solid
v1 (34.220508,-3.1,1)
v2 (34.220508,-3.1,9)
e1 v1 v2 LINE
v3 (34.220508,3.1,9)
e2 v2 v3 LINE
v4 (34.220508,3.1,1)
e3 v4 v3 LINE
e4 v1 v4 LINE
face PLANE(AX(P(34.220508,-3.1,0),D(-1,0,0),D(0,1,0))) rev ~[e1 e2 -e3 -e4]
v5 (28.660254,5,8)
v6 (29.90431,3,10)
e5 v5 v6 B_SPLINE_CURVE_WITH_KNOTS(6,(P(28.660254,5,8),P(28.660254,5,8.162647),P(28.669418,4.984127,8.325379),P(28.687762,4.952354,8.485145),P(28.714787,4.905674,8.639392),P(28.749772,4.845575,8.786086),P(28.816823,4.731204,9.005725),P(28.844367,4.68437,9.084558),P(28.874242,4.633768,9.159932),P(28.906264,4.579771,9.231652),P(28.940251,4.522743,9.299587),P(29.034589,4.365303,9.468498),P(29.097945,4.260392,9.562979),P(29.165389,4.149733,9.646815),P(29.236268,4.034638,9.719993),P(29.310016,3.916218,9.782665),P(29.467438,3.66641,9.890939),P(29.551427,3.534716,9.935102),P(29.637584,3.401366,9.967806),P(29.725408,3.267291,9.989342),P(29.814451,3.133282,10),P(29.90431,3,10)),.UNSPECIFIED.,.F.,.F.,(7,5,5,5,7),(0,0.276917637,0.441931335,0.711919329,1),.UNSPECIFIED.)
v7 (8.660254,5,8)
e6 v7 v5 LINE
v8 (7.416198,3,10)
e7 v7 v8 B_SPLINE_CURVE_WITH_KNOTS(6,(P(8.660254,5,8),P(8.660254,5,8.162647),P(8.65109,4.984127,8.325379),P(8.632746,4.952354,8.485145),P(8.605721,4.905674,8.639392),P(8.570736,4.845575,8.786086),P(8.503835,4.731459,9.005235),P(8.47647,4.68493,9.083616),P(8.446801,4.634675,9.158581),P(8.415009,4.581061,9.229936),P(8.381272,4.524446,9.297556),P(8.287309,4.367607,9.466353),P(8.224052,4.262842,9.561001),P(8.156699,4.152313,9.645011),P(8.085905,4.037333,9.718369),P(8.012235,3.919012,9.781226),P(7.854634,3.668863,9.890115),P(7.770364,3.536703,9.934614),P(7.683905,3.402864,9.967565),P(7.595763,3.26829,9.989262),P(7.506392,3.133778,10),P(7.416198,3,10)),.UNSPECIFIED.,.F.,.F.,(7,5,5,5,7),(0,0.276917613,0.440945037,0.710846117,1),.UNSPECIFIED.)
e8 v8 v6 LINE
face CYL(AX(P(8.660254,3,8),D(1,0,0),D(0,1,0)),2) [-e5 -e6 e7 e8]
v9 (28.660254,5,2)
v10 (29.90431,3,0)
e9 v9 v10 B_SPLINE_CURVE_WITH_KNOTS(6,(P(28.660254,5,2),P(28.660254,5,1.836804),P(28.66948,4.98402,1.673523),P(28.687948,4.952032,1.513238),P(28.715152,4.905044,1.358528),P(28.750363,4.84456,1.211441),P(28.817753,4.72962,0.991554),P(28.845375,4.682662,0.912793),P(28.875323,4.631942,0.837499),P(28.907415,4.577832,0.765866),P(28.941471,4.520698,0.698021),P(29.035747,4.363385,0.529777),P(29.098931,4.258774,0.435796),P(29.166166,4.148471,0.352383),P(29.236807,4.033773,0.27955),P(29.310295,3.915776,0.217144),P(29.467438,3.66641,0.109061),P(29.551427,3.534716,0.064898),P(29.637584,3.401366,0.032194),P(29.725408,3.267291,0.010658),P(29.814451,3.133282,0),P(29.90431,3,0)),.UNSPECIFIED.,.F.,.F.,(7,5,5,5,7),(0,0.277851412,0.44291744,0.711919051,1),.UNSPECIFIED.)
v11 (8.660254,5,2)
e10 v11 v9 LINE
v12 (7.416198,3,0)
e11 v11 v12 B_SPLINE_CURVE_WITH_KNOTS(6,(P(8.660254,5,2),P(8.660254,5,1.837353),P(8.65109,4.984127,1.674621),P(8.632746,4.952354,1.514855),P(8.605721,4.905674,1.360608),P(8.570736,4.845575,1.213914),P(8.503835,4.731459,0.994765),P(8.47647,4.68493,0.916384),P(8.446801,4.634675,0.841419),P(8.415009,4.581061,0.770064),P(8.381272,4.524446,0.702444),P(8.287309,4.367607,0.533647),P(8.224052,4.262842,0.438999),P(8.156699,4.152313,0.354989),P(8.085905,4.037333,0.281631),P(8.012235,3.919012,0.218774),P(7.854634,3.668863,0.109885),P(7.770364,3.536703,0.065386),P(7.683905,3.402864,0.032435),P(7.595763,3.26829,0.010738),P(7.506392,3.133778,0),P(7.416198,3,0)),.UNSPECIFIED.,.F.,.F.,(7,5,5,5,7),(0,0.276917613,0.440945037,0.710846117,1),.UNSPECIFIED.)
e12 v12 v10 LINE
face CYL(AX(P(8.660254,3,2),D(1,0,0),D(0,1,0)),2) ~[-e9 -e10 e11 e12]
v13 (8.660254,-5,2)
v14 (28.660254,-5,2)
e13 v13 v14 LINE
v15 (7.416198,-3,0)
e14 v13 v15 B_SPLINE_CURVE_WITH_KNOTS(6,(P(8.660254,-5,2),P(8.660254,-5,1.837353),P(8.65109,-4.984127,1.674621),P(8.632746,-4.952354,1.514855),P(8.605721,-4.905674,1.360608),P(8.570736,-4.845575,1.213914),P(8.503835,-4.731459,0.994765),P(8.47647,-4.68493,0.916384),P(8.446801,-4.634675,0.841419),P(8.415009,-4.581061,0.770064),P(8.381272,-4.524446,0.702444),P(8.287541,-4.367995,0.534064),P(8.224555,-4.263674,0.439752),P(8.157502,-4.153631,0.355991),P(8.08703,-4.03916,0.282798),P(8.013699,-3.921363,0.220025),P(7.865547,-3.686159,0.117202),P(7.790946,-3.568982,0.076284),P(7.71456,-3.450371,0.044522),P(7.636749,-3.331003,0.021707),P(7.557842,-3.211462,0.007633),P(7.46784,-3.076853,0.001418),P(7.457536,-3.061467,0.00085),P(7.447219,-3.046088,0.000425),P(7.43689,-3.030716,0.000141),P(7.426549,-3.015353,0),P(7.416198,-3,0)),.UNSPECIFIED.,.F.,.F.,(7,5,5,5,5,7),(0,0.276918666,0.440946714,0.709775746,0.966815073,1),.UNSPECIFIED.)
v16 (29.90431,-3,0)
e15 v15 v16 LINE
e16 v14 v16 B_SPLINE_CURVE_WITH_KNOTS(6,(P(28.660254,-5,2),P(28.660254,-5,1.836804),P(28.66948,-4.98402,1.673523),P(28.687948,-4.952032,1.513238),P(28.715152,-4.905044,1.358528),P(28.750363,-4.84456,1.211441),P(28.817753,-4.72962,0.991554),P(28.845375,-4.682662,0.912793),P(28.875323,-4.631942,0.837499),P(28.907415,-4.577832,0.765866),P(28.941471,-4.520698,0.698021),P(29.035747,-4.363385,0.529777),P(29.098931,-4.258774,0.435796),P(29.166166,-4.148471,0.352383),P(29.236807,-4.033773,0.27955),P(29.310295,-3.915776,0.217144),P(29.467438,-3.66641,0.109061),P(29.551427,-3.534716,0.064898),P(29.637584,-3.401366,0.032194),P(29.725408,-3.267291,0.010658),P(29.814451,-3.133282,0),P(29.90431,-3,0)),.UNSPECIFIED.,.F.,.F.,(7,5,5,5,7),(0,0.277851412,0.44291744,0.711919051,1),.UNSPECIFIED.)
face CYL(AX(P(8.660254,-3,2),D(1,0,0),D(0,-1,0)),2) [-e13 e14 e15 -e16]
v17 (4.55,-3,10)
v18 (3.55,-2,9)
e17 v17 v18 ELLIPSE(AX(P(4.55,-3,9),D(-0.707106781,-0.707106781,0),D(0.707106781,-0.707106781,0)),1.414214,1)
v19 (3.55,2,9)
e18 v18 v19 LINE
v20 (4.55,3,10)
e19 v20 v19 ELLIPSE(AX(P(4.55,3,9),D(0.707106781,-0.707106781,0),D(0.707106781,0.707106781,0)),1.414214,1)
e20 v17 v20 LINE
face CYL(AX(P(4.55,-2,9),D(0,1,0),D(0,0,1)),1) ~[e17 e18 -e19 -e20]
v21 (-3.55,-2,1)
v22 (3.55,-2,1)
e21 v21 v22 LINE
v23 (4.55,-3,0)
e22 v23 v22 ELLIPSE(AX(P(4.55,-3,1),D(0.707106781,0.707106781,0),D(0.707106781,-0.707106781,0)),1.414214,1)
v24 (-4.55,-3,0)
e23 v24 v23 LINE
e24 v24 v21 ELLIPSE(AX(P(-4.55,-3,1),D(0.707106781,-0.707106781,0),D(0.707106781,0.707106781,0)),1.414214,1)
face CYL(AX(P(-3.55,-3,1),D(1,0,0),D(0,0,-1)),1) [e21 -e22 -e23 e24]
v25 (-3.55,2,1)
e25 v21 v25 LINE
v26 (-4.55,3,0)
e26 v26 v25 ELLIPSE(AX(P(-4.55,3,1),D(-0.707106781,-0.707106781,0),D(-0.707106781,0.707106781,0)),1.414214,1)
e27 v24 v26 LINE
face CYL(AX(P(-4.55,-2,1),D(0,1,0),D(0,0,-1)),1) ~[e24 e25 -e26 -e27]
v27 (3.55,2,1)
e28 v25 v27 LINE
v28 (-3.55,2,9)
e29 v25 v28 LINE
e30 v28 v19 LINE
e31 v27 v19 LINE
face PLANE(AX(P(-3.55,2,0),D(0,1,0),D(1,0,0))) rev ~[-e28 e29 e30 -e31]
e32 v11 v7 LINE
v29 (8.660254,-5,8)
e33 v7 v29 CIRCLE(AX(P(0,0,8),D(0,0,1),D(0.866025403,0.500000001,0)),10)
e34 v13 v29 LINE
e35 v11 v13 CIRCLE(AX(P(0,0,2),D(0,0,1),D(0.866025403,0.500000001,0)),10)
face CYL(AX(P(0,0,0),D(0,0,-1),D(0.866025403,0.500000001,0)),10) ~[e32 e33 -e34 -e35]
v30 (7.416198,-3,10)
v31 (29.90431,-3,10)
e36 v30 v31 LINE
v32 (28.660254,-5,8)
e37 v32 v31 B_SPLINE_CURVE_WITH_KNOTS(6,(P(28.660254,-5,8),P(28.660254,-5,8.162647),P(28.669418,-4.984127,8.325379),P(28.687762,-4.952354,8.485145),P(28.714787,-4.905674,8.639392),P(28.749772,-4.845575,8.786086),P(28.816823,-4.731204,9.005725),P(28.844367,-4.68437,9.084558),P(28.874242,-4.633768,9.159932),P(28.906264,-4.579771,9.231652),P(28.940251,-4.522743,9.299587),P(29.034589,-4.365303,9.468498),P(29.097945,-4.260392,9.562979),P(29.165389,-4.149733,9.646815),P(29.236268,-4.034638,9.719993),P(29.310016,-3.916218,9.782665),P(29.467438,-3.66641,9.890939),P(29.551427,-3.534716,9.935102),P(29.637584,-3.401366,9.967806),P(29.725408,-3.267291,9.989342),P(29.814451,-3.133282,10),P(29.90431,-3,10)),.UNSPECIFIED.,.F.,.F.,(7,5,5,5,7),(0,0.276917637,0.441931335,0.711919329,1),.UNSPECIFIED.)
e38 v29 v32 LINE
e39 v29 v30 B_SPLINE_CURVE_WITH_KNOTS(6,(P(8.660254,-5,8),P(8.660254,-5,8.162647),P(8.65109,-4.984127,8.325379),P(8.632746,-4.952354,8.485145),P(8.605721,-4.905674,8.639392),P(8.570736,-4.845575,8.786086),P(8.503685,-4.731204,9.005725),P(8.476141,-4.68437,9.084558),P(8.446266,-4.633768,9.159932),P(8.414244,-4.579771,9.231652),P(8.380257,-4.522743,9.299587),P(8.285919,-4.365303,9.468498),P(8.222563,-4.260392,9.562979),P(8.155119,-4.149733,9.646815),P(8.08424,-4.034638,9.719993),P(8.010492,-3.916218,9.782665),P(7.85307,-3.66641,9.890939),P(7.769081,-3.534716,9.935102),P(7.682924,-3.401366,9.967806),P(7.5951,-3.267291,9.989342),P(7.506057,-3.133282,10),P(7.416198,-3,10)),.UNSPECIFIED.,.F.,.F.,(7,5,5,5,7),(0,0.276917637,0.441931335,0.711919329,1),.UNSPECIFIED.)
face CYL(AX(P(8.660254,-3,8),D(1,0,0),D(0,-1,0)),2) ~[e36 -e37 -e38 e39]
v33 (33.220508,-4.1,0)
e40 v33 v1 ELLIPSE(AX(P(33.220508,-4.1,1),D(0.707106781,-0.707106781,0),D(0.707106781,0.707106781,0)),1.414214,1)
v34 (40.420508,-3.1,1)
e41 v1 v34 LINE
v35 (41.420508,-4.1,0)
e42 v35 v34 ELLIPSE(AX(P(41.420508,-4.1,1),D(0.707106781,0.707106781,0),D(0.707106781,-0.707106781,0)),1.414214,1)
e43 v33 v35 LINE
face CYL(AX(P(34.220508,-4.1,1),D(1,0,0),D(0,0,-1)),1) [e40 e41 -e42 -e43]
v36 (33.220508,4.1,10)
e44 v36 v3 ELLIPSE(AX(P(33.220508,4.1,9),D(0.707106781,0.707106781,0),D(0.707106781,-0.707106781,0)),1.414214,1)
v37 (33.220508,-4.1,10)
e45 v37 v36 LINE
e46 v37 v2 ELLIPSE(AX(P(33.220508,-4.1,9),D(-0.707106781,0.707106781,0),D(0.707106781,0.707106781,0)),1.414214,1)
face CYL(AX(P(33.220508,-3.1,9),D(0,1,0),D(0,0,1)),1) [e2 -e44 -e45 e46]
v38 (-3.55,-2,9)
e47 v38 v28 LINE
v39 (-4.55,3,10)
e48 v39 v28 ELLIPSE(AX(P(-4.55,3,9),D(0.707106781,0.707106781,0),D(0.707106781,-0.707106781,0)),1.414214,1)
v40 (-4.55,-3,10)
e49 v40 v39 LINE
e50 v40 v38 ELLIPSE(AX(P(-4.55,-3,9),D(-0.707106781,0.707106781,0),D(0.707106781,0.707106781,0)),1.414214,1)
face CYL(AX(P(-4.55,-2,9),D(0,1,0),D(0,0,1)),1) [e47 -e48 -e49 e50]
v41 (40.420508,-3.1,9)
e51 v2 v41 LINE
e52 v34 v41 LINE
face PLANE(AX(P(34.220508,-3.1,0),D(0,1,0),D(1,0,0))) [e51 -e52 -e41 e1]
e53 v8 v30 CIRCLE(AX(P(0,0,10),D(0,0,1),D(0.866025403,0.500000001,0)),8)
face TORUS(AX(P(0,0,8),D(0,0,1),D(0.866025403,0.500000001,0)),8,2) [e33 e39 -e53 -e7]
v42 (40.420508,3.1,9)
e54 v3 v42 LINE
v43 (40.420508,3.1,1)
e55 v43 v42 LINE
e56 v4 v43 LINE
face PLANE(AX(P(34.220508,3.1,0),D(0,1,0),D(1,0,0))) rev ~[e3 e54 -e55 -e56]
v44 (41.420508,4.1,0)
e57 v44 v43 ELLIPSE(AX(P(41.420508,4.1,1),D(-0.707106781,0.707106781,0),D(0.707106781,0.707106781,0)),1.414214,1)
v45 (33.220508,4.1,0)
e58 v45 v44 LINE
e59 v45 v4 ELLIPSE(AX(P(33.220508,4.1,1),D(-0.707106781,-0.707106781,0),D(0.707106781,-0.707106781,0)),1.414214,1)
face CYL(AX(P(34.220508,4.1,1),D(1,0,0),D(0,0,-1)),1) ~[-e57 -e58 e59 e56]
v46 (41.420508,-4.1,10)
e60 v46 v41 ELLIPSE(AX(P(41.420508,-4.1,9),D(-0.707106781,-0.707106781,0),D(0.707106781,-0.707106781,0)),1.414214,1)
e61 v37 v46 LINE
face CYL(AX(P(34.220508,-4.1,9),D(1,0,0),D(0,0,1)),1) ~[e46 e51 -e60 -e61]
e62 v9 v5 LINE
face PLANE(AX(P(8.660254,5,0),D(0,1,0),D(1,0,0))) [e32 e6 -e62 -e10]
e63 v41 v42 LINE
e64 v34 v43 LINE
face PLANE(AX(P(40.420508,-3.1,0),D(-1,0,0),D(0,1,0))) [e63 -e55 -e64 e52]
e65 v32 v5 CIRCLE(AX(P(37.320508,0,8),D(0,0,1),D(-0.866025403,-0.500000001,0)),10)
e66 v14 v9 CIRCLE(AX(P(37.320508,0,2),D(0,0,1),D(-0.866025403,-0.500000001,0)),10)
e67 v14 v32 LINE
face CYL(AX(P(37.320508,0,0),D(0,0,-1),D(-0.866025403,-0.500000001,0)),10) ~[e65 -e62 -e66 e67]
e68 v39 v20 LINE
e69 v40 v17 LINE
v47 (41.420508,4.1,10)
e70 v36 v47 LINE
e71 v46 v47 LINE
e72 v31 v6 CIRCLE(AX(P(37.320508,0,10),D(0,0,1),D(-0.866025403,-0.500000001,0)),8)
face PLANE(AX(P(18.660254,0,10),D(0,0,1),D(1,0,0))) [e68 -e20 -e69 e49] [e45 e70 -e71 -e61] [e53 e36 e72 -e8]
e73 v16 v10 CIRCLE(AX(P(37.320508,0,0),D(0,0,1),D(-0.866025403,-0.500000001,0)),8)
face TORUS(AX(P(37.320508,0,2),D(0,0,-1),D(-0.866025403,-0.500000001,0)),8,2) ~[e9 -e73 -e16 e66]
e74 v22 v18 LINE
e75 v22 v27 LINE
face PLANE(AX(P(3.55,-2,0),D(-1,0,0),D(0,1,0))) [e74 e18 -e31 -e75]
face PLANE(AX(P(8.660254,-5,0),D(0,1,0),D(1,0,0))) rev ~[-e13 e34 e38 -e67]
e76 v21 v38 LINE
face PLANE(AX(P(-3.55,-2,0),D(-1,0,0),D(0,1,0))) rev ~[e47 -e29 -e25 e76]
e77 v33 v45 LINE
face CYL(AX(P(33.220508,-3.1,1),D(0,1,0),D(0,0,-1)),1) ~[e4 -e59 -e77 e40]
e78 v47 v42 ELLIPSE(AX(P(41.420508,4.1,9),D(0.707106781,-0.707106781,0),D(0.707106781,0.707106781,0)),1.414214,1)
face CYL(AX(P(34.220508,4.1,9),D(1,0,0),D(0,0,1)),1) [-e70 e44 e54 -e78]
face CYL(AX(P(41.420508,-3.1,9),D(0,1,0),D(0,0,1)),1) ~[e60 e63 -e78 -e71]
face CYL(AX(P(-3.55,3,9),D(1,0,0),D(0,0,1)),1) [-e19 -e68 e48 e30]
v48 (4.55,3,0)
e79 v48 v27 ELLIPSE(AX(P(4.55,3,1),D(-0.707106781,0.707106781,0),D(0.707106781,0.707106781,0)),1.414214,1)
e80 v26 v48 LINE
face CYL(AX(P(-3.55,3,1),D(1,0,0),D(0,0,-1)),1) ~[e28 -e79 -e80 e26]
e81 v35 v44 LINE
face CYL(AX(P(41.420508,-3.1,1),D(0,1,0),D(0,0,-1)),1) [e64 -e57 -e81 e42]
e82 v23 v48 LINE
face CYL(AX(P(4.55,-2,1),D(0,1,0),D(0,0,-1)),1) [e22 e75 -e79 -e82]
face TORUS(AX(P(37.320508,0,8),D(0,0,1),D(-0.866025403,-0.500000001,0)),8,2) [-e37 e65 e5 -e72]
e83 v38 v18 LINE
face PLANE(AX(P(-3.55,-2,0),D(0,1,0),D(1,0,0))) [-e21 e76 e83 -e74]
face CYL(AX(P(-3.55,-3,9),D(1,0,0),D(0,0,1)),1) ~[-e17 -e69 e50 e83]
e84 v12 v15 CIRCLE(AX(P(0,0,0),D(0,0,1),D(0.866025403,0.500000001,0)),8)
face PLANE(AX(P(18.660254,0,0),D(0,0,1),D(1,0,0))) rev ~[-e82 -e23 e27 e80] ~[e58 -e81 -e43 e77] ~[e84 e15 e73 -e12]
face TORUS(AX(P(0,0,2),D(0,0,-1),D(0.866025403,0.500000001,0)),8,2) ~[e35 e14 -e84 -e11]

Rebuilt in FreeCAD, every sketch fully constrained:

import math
import FreeCAD as App
import Part
import Sketcher
from FreeCAD import Vector
Q = App.Units.Quantity


def edges_at(feature, points):
    """Names of the edges that pass closest to the given points."""
    edges = feature.Shape.Edges
    near = lambda p: min(range(len(edges)), key=lambda i: edges[i].distToShape(Part.Vertex(*p))[0])
    return sorted({f"Edge{near(p) + 1}" for p in points})


def add_polygon(sketch, points):
    """Adds a closed chain of lines whose ends are joined by coincident constraints."""
    first, n = sketch.GeometryCount, len(points)
    for a, b in zip(points, points[1:] + points[:1]):
        sketch.addGeometry(Part.LineSegment(App.Vector(*a, 0), App.Vector(*b, 0)), False)
    for i in range(n):
        sketch.addConstraint(Sketcher.Constraint("Coincident", first + i, 2, first + (i + 1) % n, 1))

doc = App.newDocument("Part")
body = doc.addObject("PartDesign::Body", "Body")

# Sketch on XY plane
sketch1 = body.newObject("Sketcher::SketchObject", "Sketch")
sketch1.AttachmentSupport = (doc.getObject("XY_Plane"), [""])
sketch1.MapMode = "FlatFace"
sketch1.addGeometry(Part.ArcOfCircle(Part.Circle(Vector(0, 0, 0), Vector(0, 0, 1), 10), math.radians(30), math.radians(330)), False)  # 0
sketch1.addGeometry(Part.LineSegment(Vector(8.660254, -5, 0), Vector(28.660254, -5, 0)), False)  # 1
sketch1.addGeometry(Part.ArcOfCircle(Part.Circle(Vector(37.320508, 0, 0), Vector(0, 0, 1), 10), math.radians(-150), math.radians(150)), False)  # 2
sketch1.addGeometry(Part.LineSegment(Vector(28.660254, 5, 0), Vector(8.660254, 5, 0)), False)  # 3
add_polygon(sketch1, [(3.55, -2), (-3.55, -2), (-3.55, 2), (3.55, 2)])  # lines 4-7
add_polygon(sketch1, [(40.420508, -3.1), (34.220508, -3.1), (34.220508, 3.1), (40.420508, 3.1)])  # lines 8-11
sketch1.addConstraint([
    Sketcher.Constraint("Coincident", 0, 2, 1, 1),
    Sketcher.Constraint("Coincident", 1, 2, 2, 1),
    Sketcher.Constraint("Coincident", 2, 2, 3, 1),
    Sketcher.Constraint("Coincident", 3, 2, 0, 1),
    Sketcher.Constraint("Horizontal", 1),
    Sketcher.Constraint("Horizontal", 3),
    Sketcher.Constraint("Horizontal", 4),
    Sketcher.Constraint("Vertical", 5),
    Sketcher.Constraint("Horizontal", 6),
    Sketcher.Constraint("Vertical", 7),
    Sketcher.Constraint("Horizontal", 8),
    Sketcher.Constraint("Vertical", 9),
    Sketcher.Constraint("Horizontal", 10),
    Sketcher.Constraint("Vertical", 11),
    Sketcher.Constraint("Coincident", 0, 3, -1, 1),
    Sketcher.Constraint("Equal", 0, 2),
    Sketcher.Constraint("Symmetric", 4, 2, 6, 2, -1, 1),
    Sketcher.Constraint("Symmetric", 1, 2, 2, 2, -1),
    Sketcher.Constraint("Equal", 10, 9),
    Sketcher.Constraint("Radius", 0, Q("10 mm")),
    Sketcher.Constraint("DistanceX", 1, 1, 1, 2, Q("20 mm")),
    Sketcher.Constraint("DistanceY", 5, 1, 5, 2, Q("4 mm")),
    Sketcher.Constraint("DistanceX", 4, 2, 4, 1, Q("7.1 mm")),
    Sketcher.Constraint("DistanceX", 8, 2, 8, 1, Q("6.2 mm")),
    Sketcher.Constraint("DistanceY", 0, 2, -1, 1, Q("5 mm")),
    Sketcher.Constraint("DistanceY", 8, 2, -1, 1, Q("3.1 mm")),
    Sketcher.Constraint("DistanceX", 8, 2, 2, 3, Q("3.1 mm")),
])
pad1 = body.newObject("PartDesign::Pad", "Pad")
pad1.Profile = sketch1
pad1.Length = 10
doc.recompute()

fillet = body.newObject("PartDesign::Fillet", "Fillet")
fillet.Base = (pad1, edges_at(pad1, [
    (-10, 0, 10),
    (18.66, -5, 10),
    (18.66, 5, 10),
    (47.321, 0, 10),
    (-10, 0, 0),
    (18.66, -5, 0),
    (47.321, 0, 0),
    (18.66, 5, 0),
]))
fillet.Radius = 2
doc.recompute()

fillet2 = body.newObject("PartDesign::Fillet", "Fillet001")
fillet2.Base = (fillet, edges_at(fillet, [
    (0, -2, 0),
    (-3.55, 0, 0),
    (0, 2, 0),
    (3.55, 0, 0),
    (0, 2, 10),
    (0, -2, 10),
    (3.55, 0, 10),
    (-3.55, 0, 10),
    (37.321, 3.1, 10),
    (34.221, 0, 10),
    (37.321, -3.1, 10),
    (40.421, 0, 10),
    (37.321, -3.1, 0),
    (40.421, 0, 0),
    (37.321, 3.1, 0),
    (34.221, 0, 0),
]))
fillet2.Radius = 1

doc.recompute()
